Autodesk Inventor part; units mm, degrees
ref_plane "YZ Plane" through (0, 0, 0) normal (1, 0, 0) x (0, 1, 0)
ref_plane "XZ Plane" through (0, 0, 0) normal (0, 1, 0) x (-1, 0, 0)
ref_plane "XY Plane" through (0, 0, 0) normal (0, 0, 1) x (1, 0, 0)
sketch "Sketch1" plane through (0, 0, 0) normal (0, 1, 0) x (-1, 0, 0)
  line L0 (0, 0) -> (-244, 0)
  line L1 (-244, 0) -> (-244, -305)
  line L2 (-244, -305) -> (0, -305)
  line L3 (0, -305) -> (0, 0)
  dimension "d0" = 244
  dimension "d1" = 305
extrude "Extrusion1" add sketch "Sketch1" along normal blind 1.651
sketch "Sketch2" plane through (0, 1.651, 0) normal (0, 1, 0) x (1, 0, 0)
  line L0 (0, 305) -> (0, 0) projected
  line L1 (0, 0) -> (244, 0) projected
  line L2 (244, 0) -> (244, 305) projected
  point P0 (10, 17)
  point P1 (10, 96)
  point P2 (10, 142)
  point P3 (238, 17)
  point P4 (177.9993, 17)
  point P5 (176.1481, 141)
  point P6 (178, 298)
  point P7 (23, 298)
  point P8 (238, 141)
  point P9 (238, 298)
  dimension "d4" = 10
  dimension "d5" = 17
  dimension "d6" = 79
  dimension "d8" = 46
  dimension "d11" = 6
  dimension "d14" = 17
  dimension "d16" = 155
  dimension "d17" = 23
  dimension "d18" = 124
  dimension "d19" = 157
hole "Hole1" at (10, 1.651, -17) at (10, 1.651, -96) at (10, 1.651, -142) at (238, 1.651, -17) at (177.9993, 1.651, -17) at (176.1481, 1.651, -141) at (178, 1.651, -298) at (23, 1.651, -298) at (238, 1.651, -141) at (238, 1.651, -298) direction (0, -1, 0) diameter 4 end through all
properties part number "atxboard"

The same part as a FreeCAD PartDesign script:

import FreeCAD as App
import Part
import Sketcher

V = App.Vector

doc = App.newDocument("Part")
body = doc.addObject("PartDesign::Body", "Body")

# Sketch on XZ plane
sketch1 = body.newObject("Sketcher::SketchObject", "Sketch")
sketch1.AttachmentSupport = (doc.getObject("XZ_Plane"), [""])
sketch1.MapMode = "FlatFace"
sketch1.addGeometry(Part.LineSegment(V(0, -305, 0), V(0, 0, 0)), False)
sketch1.addGeometry(Part.LineSegment(V(0, 0, 0), V(244, 0, 0)), False)
sketch1.addGeometry(Part.LineSegment(V(244, 0, 0), V(244, -305, 0)), False)
sketch1.addGeometry(Part.LineSegment(V(244, -305, 0), V(0, -305, 0)), False)
sketch1.addConstraint(Sketcher.Constraint("Coincident", 0, 2, 1, 1))
sketch1.addConstraint(Sketcher.Constraint("Coincident", 1, 2, 2, 1))
sketch1.addConstraint(Sketcher.Constraint("Coincident", 2, 2, 3, 1))
sketch1.addConstraint(Sketcher.Constraint("Coincident", 3, 2, 0, 1))
sketch1.addConstraint(Sketcher.Constraint("Vertical", 0))
sketch1.addConstraint(Sketcher.Constraint("Horizontal", 1))
sketch1.addConstraint(Sketcher.Constraint("Vertical", 2))
sketch1.addConstraint(Sketcher.Constraint("Horizontal", 3))
sketch1.addConstraint(Sketcher.Constraint("Coincident", 0, 2, -1, 1))
sketch1.addConstraint(Sketcher.Constraint("DistanceX", 1, 1, 1, 2, 244.0))
sketch1.addConstraint(Sketcher.Constraint("DistanceY", 0, 1, 0, 2, 305.0))
pad1 = body.newObject("PartDesign::Pad", "Pad")
pad1.Profile = sketch1
pad1.Length = 1.651
pad1.Reversed = True

# Sketch on XZ plane
sketch2 = body.newObject("Sketcher::SketchObject", "Sketch001")
sketch2.AttachmentSupport = (doc.getObject("XZ_Plane"), [""])
sketch2.MapMode = "FlatFace"
sketch2.AttachmentOffset = App.Placement(V(0, 0, -1.651), App.Rotation())
sketch2.addGeometry(Part.Circle(V(10, -17, 0), V(0, 0, 1), 2), False)
sketch2.addGeometry(Part.Circle(V(10, -96, 0), V(0, 0, 1), 2), False)
sketch2.addGeometry(Part.Circle(V(10, -142, 0), V(0, 0, 1), 2), False)
sketch2.addGeometry(Part.Circle(V(238, -17, 0), V(0, 0, 1), 2), False)
sketch2.addGeometry(Part.Circle(V(178, -17, 0), V(0, 0, 1), 2), False)
sketch2.addGeometry(Part.Circle(V(176.1, -141, 0), V(0, 0, 1), 2), False)
sketch2.addGeometry(Part.Circle(V(178, -298, 0), V(0, 0, 1), 2), False)
sketch2.addGeometry(Part.Circle(V(23, -298, 0), V(0, 0, 1), 2), False)
sketch2.addGeometry(Part.Circle(V(238, -141, 0), V(0, 0, 1), 2), False)
sketch2.addGeometry(Part.Circle(V(238, -298, 0), V(0, 0, 1), 2), False)
sketch2.addConstraint(Sketcher.Constraint("Equal", 0, 1))
sketch2.addConstraint(Sketcher.Constraint("Equal", 1, 2))
sketch2.addConstraint(Sketcher.Constraint("Equal", 2, 3))
sketch2.addConstraint(Sketcher.Constraint("Equal", 3, 4))
sketch2.addConstraint(Sketcher.Constraint("Equal", 4, 5))
sketch2.addConstraint(Sketcher.Constraint("Equal", 5, 6))
sketch2.addConstraint(Sketcher.Constraint("Equal", 6, 7))
sketch2.addConstraint(Sketcher.Constraint("Equal", 7, 8))
sketch2.addConstraint(Sketcher.Constraint("Equal", 8, 9))
sketch2.addConstraint(Sketcher.Constraint("Horizontal", 0, 3, 3, 3))
sketch2.addConstraint(Sketcher.Constraint("Horizontal", 3, 3, 4, 3))
sketch2.addConstraint(Sketcher.Constraint("Horizontal", 6, 3, 7, 3))
sketch2.addConstraint(Sketcher.Constraint("Horizontal", 5, 3, 8, 3))
sketch2.addConstraint(Sketcher.Constraint("Horizontal", 7, 3, 9, 3))
sketch2.addConstraint(Sketcher.Constraint("Vertical", 0, 3, 1, 3))
sketch2.addConstraint(Sketcher.Constraint("Vertical", 1, 3, 2, 3))
sketch2.addConstraint(Sketcher.Constraint("Vertical", 3, 3, 8, 3))
sketch2.addConstraint(Sketcher.Constraint("Vertical", 8, 3, 9, 3))
sketch2.addConstraint(Sketcher.Constraint("Diameter", 0, 4.0))
sketch2.addConstraint(Sketcher.Constraint("DistanceX", -1, 1, 0, 3, 10.0))
sketch2.addConstraint(Sketcher.Constraint("DistanceY", 0, 3, -1, 1, 17.0))
sketch2.addConstraint(Sketcher.Constraint("DistanceY", 1, 3, -1, 1, 96.0))
sketch2.addConstraint(Sketcher.Constraint("DistanceY", 2, 3, -1, 1, 142.0))
sketch2.addConstraint(Sketcher.Constraint("DistanceX", -1, 1, 3, 3, 238.0))
sketch2.addConstraint(Sketcher.Constraint("DistanceY", 5, 3, -1, 1, 141.0))
sketch2.addConstraint(Sketcher.Constraint("DistanceX", -1, 1, 6, 3, 178.0))
sketch2.addConstraint(Sketcher.Constraint("DistanceY", 6, 3, -1, 1, 298.0))
sketch2.addConstraint(Sketcher.Constraint("DistanceX", -1, 1, 7, 3, 23.0))
sketch2.addConstraint(Sketcher.Constraint("DistanceX", -1, 1, 5, 3, 176.148))
sketch2.addConstraint(Sketcher.Constraint("DistanceX", -1, 1, 4, 3, 177.9993))
doc.recompute()
hole = body.newObject("PartDesign::Hole", "Hole")
hole.Profile = sketch2
hole.ThreadType = "None"
hole.Diameter = 4
hole.DepthType = "ThroughAll"
hole.Reversed = True

doc.recompute()
